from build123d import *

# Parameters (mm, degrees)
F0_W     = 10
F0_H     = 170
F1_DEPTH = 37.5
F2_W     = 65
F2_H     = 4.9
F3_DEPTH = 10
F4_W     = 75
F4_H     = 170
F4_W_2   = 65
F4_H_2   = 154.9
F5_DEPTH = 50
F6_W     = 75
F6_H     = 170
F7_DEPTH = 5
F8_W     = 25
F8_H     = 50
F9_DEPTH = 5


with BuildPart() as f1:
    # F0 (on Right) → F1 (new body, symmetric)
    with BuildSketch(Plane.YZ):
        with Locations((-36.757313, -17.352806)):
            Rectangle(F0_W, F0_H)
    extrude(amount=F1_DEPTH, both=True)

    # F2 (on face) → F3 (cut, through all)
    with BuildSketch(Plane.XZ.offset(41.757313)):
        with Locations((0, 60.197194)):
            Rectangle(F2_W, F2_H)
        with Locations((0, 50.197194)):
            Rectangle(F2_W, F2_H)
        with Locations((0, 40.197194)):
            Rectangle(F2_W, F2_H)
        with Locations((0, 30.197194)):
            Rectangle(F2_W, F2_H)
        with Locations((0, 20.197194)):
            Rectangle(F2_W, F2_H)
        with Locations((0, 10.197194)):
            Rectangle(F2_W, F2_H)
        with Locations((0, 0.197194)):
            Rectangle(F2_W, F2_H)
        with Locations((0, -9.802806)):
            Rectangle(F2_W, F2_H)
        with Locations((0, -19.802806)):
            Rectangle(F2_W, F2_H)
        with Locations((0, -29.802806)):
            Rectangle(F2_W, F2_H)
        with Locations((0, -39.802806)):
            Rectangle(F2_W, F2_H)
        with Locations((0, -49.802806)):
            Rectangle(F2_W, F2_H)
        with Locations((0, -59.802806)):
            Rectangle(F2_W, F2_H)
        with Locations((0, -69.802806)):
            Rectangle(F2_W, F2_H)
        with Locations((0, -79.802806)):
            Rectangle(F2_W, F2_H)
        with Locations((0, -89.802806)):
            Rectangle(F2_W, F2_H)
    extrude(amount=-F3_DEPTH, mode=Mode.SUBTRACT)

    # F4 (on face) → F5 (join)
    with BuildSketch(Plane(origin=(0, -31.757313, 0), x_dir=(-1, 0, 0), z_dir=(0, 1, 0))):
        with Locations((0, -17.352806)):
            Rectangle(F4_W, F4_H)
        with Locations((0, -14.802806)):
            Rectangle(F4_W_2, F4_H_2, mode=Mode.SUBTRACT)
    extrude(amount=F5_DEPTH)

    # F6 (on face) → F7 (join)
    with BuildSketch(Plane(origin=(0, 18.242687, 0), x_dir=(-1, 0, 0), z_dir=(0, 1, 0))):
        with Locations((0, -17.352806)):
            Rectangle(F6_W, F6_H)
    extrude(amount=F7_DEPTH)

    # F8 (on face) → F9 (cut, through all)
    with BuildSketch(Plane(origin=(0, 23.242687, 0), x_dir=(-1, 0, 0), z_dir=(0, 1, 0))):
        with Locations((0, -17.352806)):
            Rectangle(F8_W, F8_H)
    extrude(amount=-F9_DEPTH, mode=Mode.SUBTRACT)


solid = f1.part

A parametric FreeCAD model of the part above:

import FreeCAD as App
import Part
import Sketcher

doc = App.newDocument("Part")
body = doc.addObject("PartDesign::Body", "Body")

# Sketch on YZ plane
sketch1 = doc.addObject("Sketcher::SketchObject", "Sketch")
body.addObject(sketch1)
sketch1.AttachmentSupport = (doc.YZ_Plane, [""])
sketch1.MapMode = "FlatFace"
sketch1.addGeometry([
    Part.LineSegment(App.Vector(-42, 68, 0), App.Vector(-42, -102, 0)),
    Part.LineSegment(App.Vector(-42, -102, 0), App.Vector(-32, -102, 0)),
    Part.LineSegment(App.Vector(-32, -102, 0), App.Vector(-32, 68, 0)),
    Part.LineSegment(App.Vector(-32, 68, 0), App.Vector(-42, 68, 0)),
], False)
sketch1.addConstraint([
    Sketcher.Constraint("Coincident", 0, 2, 1, 1),
    Sketcher.Constraint("Coincident", 1, 2, 2, 1),
    Sketcher.Constraint("Coincident", 2, 2, 3, 1),
    Sketcher.Constraint("Coincident", 3, 2, 0, 1),
    Sketcher.Constraint("Vertical", 0),
    Sketcher.Constraint("Horizontal", 1),
    Sketcher.Constraint("Vertical", 2),
    Sketcher.Constraint("Horizontal", 3),
    Sketcher.Constraint("DistanceX", 1, 1, 1, 2, 10.0),
    Sketcher.Constraint("DistanceY", 0, 2, 0, 1, 170.0),
    Sketcher.Constraint("DistanceX", 0, 2, -1, 1, 41.757313),
    Sketcher.Constraint("DistanceY", 0, 2, -1, 1, 102.352806),
])
pad1 = doc.addObject("PartDesign::Pad", "Pad")
body.addObject(pad1)
pad1.Profile = sketch1
pad1.Length = 75
pad1.Midplane = True

# Sketch on XZ plane
sketch2 = doc.addObject("Sketcher::SketchObject", "Sketch001")
body.addObject(sketch2)
sketch2.AttachmentSupport = (doc.XZ_Plane, [""])
sketch2.MapMode = "FlatFace"
sketch2.AttachmentOffset = App.Placement(App.Vector(0, 0, 41.757313), App.Rotation())
sketch2.addGeometry([
    Part.LineSegment(App.Vector(-32.5, 62.6, 0), App.Vector(-32.5, 57.7, 0)),  # 0
    Part.LineSegment(App.Vector(-32.5, 57.7, 0), App.Vector(32.5, 57.7, 0)),  # 1
    Part.LineSegment(App.Vector(32.5, 57.7, 0), App.Vector(32.5, 62.6, 0)),  # 2
    Part.LineSegment(App.Vector(32.5, 62.6, 0), App.Vector(-32.5, 62.6, 0)),  # 3
    Part.LineSegment(App.Vector(-32.5, 52.6, 0), App.Vector(-32.5, 47.7, 0)),  # 4
    Part.LineSegment(App.Vector(-32.5, 47.7, 0), App.Vector(32.5, 47.7, 0)),  # 5
    Part.LineSegment(App.Vector(32.5, 47.7, 0), App.Vector(32.5, 52.6, 0)),  # 6
    Part.LineSegment(App.Vector(32.5, 52.6, 0), App.Vector(-32.5, 52.6, 0)),  # 7
    Part.LineSegment(App.Vector(-32.5, 42.6, 0), App.Vector(-32.5, 37.7, 0)),  # 8
    Part.LineSegment(App.Vector(-32.5, 37.7, 0), App.Vector(32.5, 37.7, 0)),  # 9
    Part.LineSegment(App.Vector(32.5, 37.7, 0), App.Vector(32.5, 42.6, 0)),  # 10
    Part.LineSegment(App.Vector(32.5, 42.6, 0), App.Vector(-32.5, 42.6, 0)),  # 11
    Part.LineSegment(App.Vector(-32.5, 32.6, 0), App.Vector(-32.5, 27.7, 0)),  # 12
    Part.LineSegment(App.Vector(-32.5, 27.7, 0), App.Vector(32.5, 27.7, 0)),  # 13
    Part.LineSegment(App.Vector(32.5, 27.7, 0), App.Vector(32.5, 32.6, 0)),  # 14
    Part.LineSegment(App.Vector(32.5, 32.6, 0), App.Vector(-32.5, 32.6, 0)),  # 15
    Part.LineSegment(App.Vector(-32.5, 22.6, 0), App.Vector(-32.5, 17.7, 0)),  # 16
    Part.LineSegment(App.Vector(-32.5, 17.7, 0), App.Vector(32.5, 17.7, 0)),  # 17
    Part.LineSegment(App.Vector(32.5, 17.7, 0), App.Vector(32.5, 22.6, 0)),  # 18
    Part.LineSegment(App.Vector(32.5, 22.6, 0), App.Vector(-32.5, 22.6, 0)),  # 19
    Part.LineSegment(App.Vector(-32.5, 12.6, 0), App.Vector(-32.5, 7.7, 0)),  # 20
    Part.LineSegment(App.Vector(-32.5, 7.7, 0), App.Vector(32.5, 7.7, 0)),  # 21
    Part.LineSegment(App.Vector(32.5, 7.7, 0), App.Vector(32.5, 12.6, 0)),  # 22
    Part.LineSegment(App.Vector(32.5, 12.6, 0), App.Vector(-32.5, 12.6, 0)),  # 23
    Part.LineSegment(App.Vector(-32.5, 2.6, 0), App.Vector(-32.5, -2.3, 0)),  # 24
    Part.LineSegment(App.Vector(-32.5, -2.3, 0), App.Vector(32.5, -2.3, 0)),  # 25
    Part.LineSegment(App.Vector(32.5, -2.3, 0), App.Vector(32.5, 2.6, 0)),  # 26
    Part.LineSegment(App.Vector(32.5, 2.6, 0), App.Vector(-32.5, 2.6, 0)),  # 27
    Part.LineSegment(App.Vector(-32.5, -7.4, 0), App.Vector(-32.5, -12.3, 0)),  # 28
    Part.LineSegment(App.Vector(-32.5, -12.3, 0), App.Vector(32.5, -12.3, 0)),  # 29
    Part.LineSegment(App.Vector(32.5, -12.3, 0), App.Vector(32.5, -7.4, 0)),  # 30
    Part.LineSegment(App.Vector(32.5, -7.4, 0), App.Vector(-32.5, -7.4, 0)),  # 31
    Part.LineSegment(App.Vector(-32.5, -17.4, 0), App.Vector(-32.5, -22.3, 0)),  # 32
    Part.LineSegment(App.Vector(-32.5, -22.3, 0), App.Vector(32.5, -22.3, 0)),  # 33
    Part.LineSegment(App.Vector(32.5, -22.3, 0), App.Vector(32.5, -17.4, 0)),  # 34
    Part.LineSegment(App.Vector(32.5, -17.4, 0), App.Vector(-32.5, -17.4, 0)),  # 35
    Part.LineSegment(App.Vector(-32.5, -27.4, 0), App.Vector(-32.5, -32.3, 0)),  # 36
    Part.LineSegment(App.Vector(-32.5, -32.3, 0), App.Vector(32.5, -32.3, 0)),  # 37
    Part.LineSegment(App.Vector(32.5, -32.3, 0), App.Vector(32.5, -27.4, 0)),  # 38
    Part.LineSegment(App.Vector(32.5, -27.4, 0), App.Vector(-32.5, -27.4, 0)),  # 39
    Part.LineSegment(App.Vector(-32.5, -37.4, 0), App.Vector(-32.5, -42.3, 0)),  # 40
    Part.LineSegment(App.Vector(-32.5, -42.3, 0), App.Vector(32.5, -42.3, 0)),  # 41
    Part.LineSegment(App.Vector(32.5, -42.3, 0), App.Vector(32.5, -37.4, 0)),  # 42
    Part.LineSegment(App.Vector(32.5, -37.4, 0), App.Vector(-32.5, -37.4, 0)),  # 43
    Part.LineSegment(App.Vector(-32.5, -47.4, 0), App.Vector(-32.5, -52.3, 0)),  # 44
    Part.LineSegment(App.Vector(-32.5, -52.3, 0), App.Vector(32.5, -52.3, 0)),  # 45
    Part.LineSegment(App.Vector(32.5, -52.3, 0), App.Vector(32.5, -47.4, 0)),  # 46
    Part.LineSegment(App.Vector(32.5, -47.4, 0), App.Vector(-32.5, -47.4, 0)),  # 47
    Part.LineSegment(App.Vector(-32.5, -57.4, 0), App.Vector(-32.5, -62.3, 0)),  # 48
    Part.LineSegment(App.Vector(-32.5, -62.3, 0), App.Vector(32.5, -62.3, 0)),  # 49
    Part.LineSegment(App.Vector(32.5, -62.3, 0), App.Vector(32.5, -57.4, 0)),  # 50
    Part.LineSegment(App.Vector(32.5, -57.4, 0), App.Vector(-32.5, -57.4, 0)),  # 51
    Part.LineSegment(App.Vector(-32.5, -67.4, 0), App.Vector(-32.5, -72.3, 0)),  # 52
    Part.LineSegment(App.Vector(-32.5, -72.3, 0), App.Vector(32.5, -72.3, 0)),  # 53
    Part.LineSegment(App.Vector(32.5, -72.3, 0), App.Vector(32.5, -67.4, 0)),  # 54
    Part.LineSegment(App.Vector(32.5, -67.4, 0), App.Vector(-32.5, -67.4, 0)),  # 55
    Part.LineSegment(App.Vector(-32.5, -77.4, 0), App.Vector(-32.5, -82.3, 0)),  # 56
    Part.LineSegment(App.Vector(-32.5, -82.3, 0), App.Vector(32.5, -82.3, 0)),  # 57
    Part.LineSegment(App.Vector(32.5, -82.3, 0), App.Vector(32.5, -77.4, 0)),  # 58
    Part.LineSegment(App.Vector(32.5, -77.4, 0), App.Vector(-32.5, -77.4, 0)),  # 59
    Part.LineSegment(App.Vector(-32.5, -87.4, 0), App.Vector(-32.5, -92.3, 0)),  # 60
    Part.LineSegment(App.Vector(-32.5, -92.3, 0), App.Vector(32.5, -92.3, 0)),  # 61
    Part.LineSegment(App.Vector(32.5, -92.3, 0), App.Vector(32.5, -87.4, 0)),  # 62
    Part.LineSegment(App.Vector(32.5, -87.4, 0), App.Vector(-32.5, -87.4, 0)),  # 63
], False)
sketch2.addConstraint([
    Sketcher.Constraint("Coincident", 0, 2, 1, 1),
    Sketcher.Constraint("Coincident", 1, 2, 2, 1),
    Sketcher.Constraint("Coincident", 2, 2, 3, 1),
    Sketcher.Constraint("Coincident", 3, 2, 0, 1),
    Sketcher.Constraint("Coincident", 4, 2, 5, 1),
    Sketcher.Constraint("Coincident", 5, 2, 6, 1),
    Sketcher.Constraint("Coincident", 6, 2, 7, 1),
    Sketcher.Constraint("Coincident", 7, 2, 4, 1),
    Sketcher.Constraint("Coincident", 8, 2, 9, 1),
    Sketcher.Constraint("Coincident", 9, 2, 10, 1),
    Sketcher.Constraint("Coincident", 10, 2, 11, 1),
    Sketcher.Constraint("Coincident", 11, 2, 8, 1),
    Sketcher.Constraint("Coincident", 12, 2, 13, 1),
    Sketcher.Constraint("Coincident", 13, 2, 14, 1),
    Sketcher.Constraint("Coincident", 14, 2, 15, 1),
    Sketcher.Constraint("Coincident", 15, 2, 12, 1),
    Sketcher.Constraint("Coincident", 16, 2, 17, 1),
    Sketcher.Constraint("Coincident", 17, 2, 18, 1),
    Sketcher.Constraint("Coincident", 18, 2, 19, 1),
    Sketcher.Constraint("Coincident", 19, 2, 16, 1),
    Sketcher.Constraint("Coincident", 20, 2, 21, 1),
    Sketcher.Constraint("Coincident", 21, 2, 22, 1),
    Sketcher.Constraint("Coincident", 22, 2, 23, 1),
    Sketcher.Constraint("Coincident", 23, 2, 20, 1),
    Sketcher.Constraint("Coincident", 24, 2, 25, 1),
    Sketcher.Constraint("Coincident", 25, 2, 26, 1),
    Sketcher.Constraint("Coincident", 26, 2, 27, 1),
    Sketcher.Constraint("Coincident", 27, 2, 24, 1),
    Sketcher.Constraint("Coincident", 28, 2, 29, 1),
    Sketcher.Constraint("Coincident", 29, 2, 30, 1),
    Sketcher.Constraint("Coincident", 30, 2, 31, 1),
    Sketcher.Constraint("Coincident", 31, 2, 28, 1),
    Sketcher.Constraint("Coincident", 32, 2, 33, 1),
    Sketcher.Constraint("Coincident", 33, 2, 34, 1),
    Sketcher.Constraint("Coincident", 34, 2, 35, 1),
    Sketcher.Constraint("Coincident", 35, 2, 32, 1),
    Sketcher.Constraint("Coincident", 36, 2, 37, 1),
    Sketcher.Constraint("Coincident", 37, 2, 38, 1),
    Sketcher.Constraint("Coincident", 38, 2, 39, 1),
    Sketcher.Constraint("Coincident", 39, 2, 36, 1),
    Sketcher.Constraint("Coincident", 40, 2, 41, 1),
    Sketcher.Constraint("Coincident", 41, 2, 42, 1),
    Sketcher.Constraint("Coincident", 42, 2, 43, 1),
    Sketcher.Constraint("Coincident", 43, 2, 40, 1),
    Sketcher.Constraint("Coincident", 44, 2, 45, 1),
    Sketcher.Constraint("Coincident", 45, 2, 46, 1),
    Sketcher.Constraint("Coincident", 46, 2, 47, 1),
    Sketcher.Constraint("Coincident", 47, 2, 44, 1),
    Sketcher.Constraint("Coincident", 48, 2, 49, 1),
    Sketcher.Constraint("Coincident", 49, 2, 50, 1),
    Sketcher.Constraint("Coincident", 50, 2, 51, 1),
    Sketcher.Constraint("Coincident", 51, 2, 48, 1),
    Sketcher.Constraint("Coincident", 52, 2, 53, 1),
    Sketcher.Constraint("Coincident", 53, 2, 54, 1),
    Sketcher.Constraint("Coincident", 54, 2, 55, 1),
    Sketcher.Constraint("Coincident", 55, 2, 52, 1),
    Sketcher.Constraint("Coincident", 56, 2, 57, 1),
    Sketcher.Constraint("Coincident", 57, 2, 58, 1),
    Sketcher.Constraint("Coincident", 58, 2, 59, 1),
    Sketcher.Constraint("Coincident", 59, 2, 56, 1),
    Sketcher.Constraint("Coincident", 60, 2, 61, 1),
    Sketcher.Constraint("Coincident", 61, 2, 62, 1),
    Sketcher.Constraint("Coincident", 62, 2, 63, 1),
    Sketcher.Constraint("Coincident", 63, 2, 60, 1),
    Sketcher.Constraint("Vertical", 0),
    Sketcher.Constraint("Horizontal", 1),
    Sketcher.Constraint("Vertical", 2),
    Sketcher.Constraint("Horizontal", 3),
    Sketcher.Constraint("Vertical", 4),
    Sketcher.Constraint("Horizontal", 5),
    Sketcher.Constraint("Vertical", 6),
    Sketcher.Constraint("Horizontal", 7),
    Sketcher.Constraint("Vertical", 8),
    Sketcher.Constraint("Horizontal", 9),
    Sketcher.Constraint("Vertical", 10),
    Sketcher.Constraint("Horizontal", 11),
    Sketcher.Constraint("Vertical", 12),
    Sketcher.Constraint("Horizontal", 13),
    Sketcher.Constraint("Vertical", 14),
    Sketcher.Constraint("Horizontal", 15),
    Sketcher.Constraint("Vertical", 16),
    Sketcher.Constraint("Horizontal", 17),
    Sketcher.Constraint("Vertical", 18),
    Sketcher.Constraint("Horizontal", 19),
    Sketcher.Constraint("Vertical", 20),
    Sketcher.Constraint("Horizontal", 21),
    Sketcher.Constraint("Vertical", 22),
    Sketcher.Constraint("Horizontal", 23),
    Sketcher.Constraint("Vertical", 24),
    Sketcher.Constraint("Horizontal", 25),
    Sketcher.Constraint("Vertical", 26),
    Sketcher.Constraint("Horizontal", 27),
    Sketcher.Constraint("Vertical", 28),
    Sketcher.Constraint("Horizontal", 29),
    Sketcher.Constraint("Vertical", 30),
    Sketcher.Constraint("Horizontal", 31),
    Sketcher.Constraint("Vertical", 32),
    Sketcher.Constraint("Horizontal", 33),
    Sketcher.Constraint("Vertical", 34),
    Sketcher.Constraint("Horizontal", 35),
    Sketcher.Constraint("Vertical", 36),
    Sketcher.Constraint("Horizontal", 37),
    Sketcher.Constraint("Vertical", 38),
    Sketcher.Constraint("Horizontal", 39),
    Sketcher.Constraint("Vertical", 40),
    Sketcher.Constraint("Horizontal", 41),
    Sketcher.Constraint("Vertical", 42),
    Sketcher.Constraint("Horizontal", 43),
    Sketcher.Constraint("Vertical", 44),
    Sketcher.Constraint("Horizontal", 45),
    Sketcher.Constraint("Vertical", 46),
    Sketcher.Constraint("Horizontal", 47),
    Sketcher.Constraint("Vertical", 48),
    Sketcher.Constraint("Horizontal", 49),
    Sketcher.Constraint("Vertical", 50),
    Sketcher.Constraint("Horizontal", 51),
    Sketcher.Constraint("Vertical", 52),
    Sketcher.Constraint("Horizontal", 53),
    Sketcher.Constraint("Vertical", 54),
    Sketcher.Constraint("Horizontal", 55),
    Sketcher.Constraint("Vertical", 56),
    Sketcher.Constraint("Horizontal", 57),
    Sketcher.Constraint("Vertical", 58),
    Sketcher.Constraint("Horizontal", 59),
    Sketcher.Constraint("Vertical", 60),
    Sketcher.Constraint("Horizontal", 61),
    Sketcher.Constraint("Vertical", 62),
    Sketcher.Constraint("Horizontal", 63),
    Sketcher.Constraint("Vertical", 3, 2, 4, 2),
    Sketcher.Constraint("Vertical", 2, 2, 5, 2),
    Sketcher.Constraint("Vertical", 7, 2, 8, 2),
    Sketcher.Constraint("Vertical", 6, 2, 9, 2),
    Sketcher.Constraint("Vertical", 11, 2, 12, 2),
    Sketcher.Constraint("Vertical", 10, 2, 13, 2),
    Sketcher.Constraint("Vertical", 15, 2, 16, 2),
    Sketcher.Constraint("Vertical", 14, 2, 17, 2),
    Sketcher.Constraint("Vertical", 19, 2, 20, 2),
    Sketcher.Constraint("Vertical", 18, 2, 21, 2),
    Sketcher.Constraint("Vertical", 23, 2, 24, 2),
    Sketcher.Constraint("Vertical", 22, 2, 25, 2),
    Sketcher.Constraint("Vertical", 27, 2, 28, 2),
    Sketcher.Constraint("Vertical", 26, 2, 29, 2),
    Sketcher.Constraint("Vertical", 31, 2, 32, 2),
    Sketcher.Constraint("Vertical", 30, 2, 33, 2),
    Sketcher.Constraint("Vertical", 35, 2, 36, 2),
    Sketcher.Constraint("Vertical", 34, 2, 37, 2),
    Sketcher.Constraint("Vertical", 39, 2, 40, 2),
    Sketcher.Constraint("Vertical", 38, 2, 41, 2),
    Sketcher.Constraint("Vertical", 43, 2, 44, 2),
    Sketcher.Constraint("Vertical", 42, 2, 45, 2),
    Sketcher.Constraint("Vertical", 47, 2, 48, 2),
    Sketcher.Constraint("Vertical", 46, 2, 49, 2),
    Sketcher.Constraint("Vertical", 51, 2, 52, 2),
    Sketcher.Constraint("Vertical", 50, 2, 53, 2),
    Sketcher.Constraint("Vertical", 55, 2, 56, 2),
    Sketcher.Constraint("Vertical", 54, 2, 57, 2),
    Sketcher.Constraint("Vertical", 59, 2, 60, 2),
    Sketcher.Constraint("Vertical", 58, 2, 61, 2),
    Sketcher.Constraint("Equal", 2, 4),
    Sketcher.Constraint("Equal", 6, 8),
    Sketcher.Constraint("Equal", 10, 12),
    Sketcher.Constraint("Equal", 14, 16),
    Sketcher.Constraint("Equal", 18, 20),
    Sketcher.Constraint("Equal", 22, 24),
    Sketcher.Constraint("Equal", 26, 28),
    Sketcher.Constraint("Equal", 30, 32),
    Sketcher.Constraint("Equal", 34, 36),
    Sketcher.Constraint("Equal", 38, 40),
    Sketcher.Constraint("Equal", 42, 44),
    Sketcher.Constraint("Equal", 46, 48),
    Sketcher.Constraint("Equal", 50, 52),
    Sketcher.Constraint("Equal", 54, 56),
    Sketcher.Constraint("Equal", 58, 60),
    Sketcher.Constraint("DistanceX", 1, 1, 1, 2, 65.0),
    Sketcher.Constraint("DistanceY", 0, 2, 0, 1, 4.9),
    Sketcher.Constraint("DistanceX", 0, 2, -1, 1, 32.5),
    Sketcher.Constraint("DistanceY", -1, 1, 0, 2, 57.747194),
    Sketcher.Constraint("DistanceY", -1, 1, 4, 2, 47.747194),
    Sketcher.Constraint("DistanceY", -1, 1, 8, 2, 37.747194),
    Sketcher.Constraint("DistanceY", -1, 1, 12, 2, 27.747194),
    Sketcher.Constraint("DistanceY", -1, 1, 16, 2, 17.747194),
    Sketcher.Constraint("DistanceY", -1, 1, 20, 2, 7.747194),
    Sketcher.Constraint("DistanceY", 24, 2, -1, 1, 2.252806),
    Sketcher.Constraint("DistanceY", 28, 2, -1, 1, 12.252806),
    Sketcher.Constraint("DistanceY", 32, 2, -1, 1, 22.252806),
    Sketcher.Constraint("DistanceY", 36, 2, -1, 1, 32.252806),
    Sketcher.Constraint("DistanceY", 40, 2, -1, 1, 42.252806),
    Sketcher.Constraint("DistanceY", 44, 2, -1, 1, 52.252806),
    Sketcher.Constraint("DistanceY", 48, 2, -1, 1, 62.252806),
    Sketcher.Constraint("DistanceY", 52, 2, -1, 1, 72.252806),
    Sketcher.Constraint("DistanceY", 56, 2, -1, 1, 82.252806),
    Sketcher.Constraint("DistanceY", 60, 2, -1, 1, 92.252806),
])
pocket1 = doc.addObject("PartDesign::Pocket", "Pocket")
body.addObject(pocket1)
pocket1.Profile = sketch2
pocket1.Type = "ThroughAll"

# Sketch on XZ plane
sketch3 = doc.addObject("Sketcher::SketchObject", "Sketch002")
body.addObject(sketch3)
sketch3.AttachmentSupport = (doc.XZ_Plane, [""])
sketch3.MapMode = "FlatFace"
sketch3.AttachmentOffset = App.Placement(App.Vector(0, 0, 31.757313), App.Rotation())
sketch3.addGeometry([
    Part.LineSegment(App.Vector(38, 68, 0), App.Vector(38, -102, 0)),  # 0
    Part.LineSegment(App.Vector(38, -102, 0), App.Vector(-38, -102, 0)),  # 1
    Part.LineSegment(App.Vector(-38, -102, 0), App.Vector(-38, 68, 0)),  # 2
    Part.LineSegment(App.Vector(-38, 68, 0), App.Vector(38, 68, 0)),  # 3
    Part.LineSegment(App.Vector(-32, -92, 0), App.Vector(32, -92, 0)),  # 4
    Part.LineSegment(App.Vector(32, -92, 0), App.Vector(32, 63, 0)),  # 5
    Part.LineSegment(App.Vector(32, 63, 0), App.Vector(-32, 63, 0)),  # 6
    Part.LineSegment(App.Vector(-32, 63, 0), App.Vector(-32, -92, 0)),  # 7
], False)
sketch3.addConstraint([
    Sketcher.Constraint("Coincident", 0, 2, 1, 1),
    Sketcher.Constraint("Coincident", 1, 2, 2, 1),
    Sketcher.Constraint("Coincident", 2, 2, 3, 1),
    Sketcher.Constraint("Coincident", 3, 2, 0, 1),
    Sketcher.Constraint("Coincident", 4, 2, 5, 1),
    Sketcher.Constraint("Coincident", 5, 2, 6, 1),
    Sketcher.Constraint("Coincident", 6, 2, 7, 1),
    Sketcher.Constraint("Coincident", 7, 2, 4, 1),
    Sketcher.Constraint("Vertical", 0),
    Sketcher.Constraint("Horizontal", 1),
    Sketcher.Constraint("Vertical", 2),
    Sketcher.Constraint("Horizontal", 3),
    Sketcher.Constraint("Horizontal", 4),
    Sketcher.Constraint("Vertical", 5),
    Sketcher.Constraint("Horizontal", 6),
    Sketcher.Constraint("Vertical", 7),
    Sketcher.Constraint("DistanceX", 1, 2, 1, 1, 75.0),
    Sketcher.Constraint("DistanceX", 4, 1, 4, 2, 65.0),
    Sketcher.Constraint("DistanceY", 0, 2, 0, 1, 170.0),
    Sketcher.Constraint("DistanceY", 5, 1, 5, 2, 154.9),
    Sketcher.Constraint("DistanceX", 4, 2, 0, 2, 5.0),
    Sketcher.Constraint("DistanceY", 5, 2, 3, 2, 5.0),
    Sketcher.Constraint("DistanceX", -1, 1, 0, 2, 37.5),
    Sketcher.Constraint("DistanceY", 0, 2, -1, 1, 102.352806),
])
pad2 = doc.addObject("PartDesign::Pad", "Pad001")
body.addObject(pad2)
pad2.Profile = sketch3
pad2.Length = 50
pad2.Reversed = True

# Sketch on XZ plane
sketch4 = doc.addObject("Sketcher::SketchObject", "Sketch003")
body.addObject(sketch4)
sketch4.AttachmentSupport = (doc.XZ_Plane, [""])
sketch4.MapMode = "FlatFace"
sketch4.AttachmentOffset = App.Placement(App.Vector(0, 0, -18.242687), App.Rotation())
sketch4.addGeometry([
    Part.LineSegment(App.Vector(38, 68, 0), App.Vector(38, -102, 0)),
    Part.LineSegment(App.Vector(38, -102, 0), App.Vector(-38, -102, 0)),
    Part.LineSegment(App.Vector(-38, -102, 0), App.Vector(-38, 68, 0)),
    Part.LineSegment(App.Vector(-38, 68, 0), App.Vector(38, 68, 0)),
], False)
sketch4.addConstraint([
    Sketcher.Constraint("Coincident", 0, 2, 1, 1),
    Sketcher.Constraint("Coincident", 1, 2, 2, 1),
    Sketcher.Constraint("Coincident", 2, 2, 3, 1),
    Sketcher.Constraint("Coincident", 3, 2, 0, 1),
    Sketcher.Constraint("Vertical", 0),
    Sketcher.Constraint("Horizontal", 1),
    Sketcher.Constraint("Vertical", 2),
    Sketcher.Constraint("Horizontal", 3),
    Sketcher.Constraint("DistanceX", 1, 2, 1, 1, 75.0),
    Sketcher.Constraint("DistanceY", 0, 2, 0, 1, 170.0),
    Sketcher.Constraint("DistanceX", -1, 1, 0, 2, 37.5),
    Sketcher.Constraint("DistanceY", 0, 2, -1, 1, 102.352806),
])
pad3 = doc.addObject("PartDesign::Pad", "Pad002")
body.addObject(pad3)
pad3.Profile = sketch4
pad3.Length = 5
pad3.Reversed = True

# Sketch on XZ plane
sketch5 = doc.addObject("Sketcher::SketchObject", "Sketch004")
body.addObject(sketch5)
sketch5.AttachmentSupport = (doc.XZ_Plane, [""])
sketch5.MapMode = "FlatFace"
sketch5.AttachmentOffset = App.Placement(App.Vector(0, 0, -23.242687), App.Rotation())
sketch5.addGeometry([
    Part.LineSegment(App.Vector(12, 8, 0), App.Vector(12, -42, 0)),
    Part.LineSegment(App.Vector(12, -42, 0), App.Vector(-12, -42, 0)),
    Part.LineSegment(App.Vector(-12, -42, 0), App.Vector(-12, 8, 0)),
    Part.LineSegment(App.Vector(-12, 8, 0), App.Vector(12, 8, 0)),
], False)
sketch5.addConstraint([
    Sketcher.Constraint("Coincident", 0, 2, 1, 1),
    Sketcher.Constraint("Coincident", 1, 2, 2, 1),
    Sketcher.Constraint("Coincident", 2, 2, 3, 1),
    Sketcher.Constraint("Coincident", 3, 2, 0, 1),
    Sketcher.Constraint("Vertical", 0),
    Sketcher.Constraint("Horizontal", 1),
    Sketcher.Constraint("Vertical", 2),
    Sketcher.Constraint("Horizontal", 3),
    Sketcher.Constraint("DistanceX", 1, 2, 1, 1, 25.0),
    Sketcher.Constraint("DistanceY", 0, 2, 0, 1, 50.0),
    Sketcher.Constraint("DistanceX", -1, 1, 0, 2, 12.5),
    Sketcher.Constraint("DistanceY", 0, 2, -1, 1, 42.352806),
])
pocket2 = doc.addObject("PartDesign::Pocket", "Pocket001")
body.addObject(pocket2)
pocket2.Profile = sketch5
pocket2.Length = 5
pocket2.Reversed = True

doc.recompute()
